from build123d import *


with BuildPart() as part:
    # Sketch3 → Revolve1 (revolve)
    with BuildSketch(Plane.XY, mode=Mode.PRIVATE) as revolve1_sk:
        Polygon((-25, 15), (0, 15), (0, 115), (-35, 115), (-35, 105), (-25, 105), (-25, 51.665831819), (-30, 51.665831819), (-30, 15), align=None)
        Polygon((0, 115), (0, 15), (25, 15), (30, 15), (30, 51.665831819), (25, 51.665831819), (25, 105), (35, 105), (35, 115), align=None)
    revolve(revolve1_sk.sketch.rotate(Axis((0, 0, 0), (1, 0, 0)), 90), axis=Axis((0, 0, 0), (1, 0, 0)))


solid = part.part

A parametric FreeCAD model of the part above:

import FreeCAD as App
import Part
import Sketcher

V = App.Vector
Q = App.Units.Quantity


def add_polygon(sketch, points):
    """Adds a closed chain of lines whose ends are joined by coincident constraints."""
    first, n = sketch.GeometryCount, len(points)
    for a, b in zip(points, points[1:] + points[:1]):
        sketch.addGeometry(Part.LineSegment(App.Vector(*a, 0), App.Vector(*b, 0)), False)
    for i in range(n):
        sketch.addConstraint(Sketcher.Constraint("Coincident", first + i, 2, first + (i + 1) % n, 1))

doc = App.newDocument("Part")
body = doc.addObject("PartDesign::Body", "Body")

# Sketch on XY plane
sketch1 = doc.addObject("Sketcher::SketchObject", "Sketch")
body.addObject(sketch1)
sketch1.AttachmentSupport = (doc.XY_Plane, [""])
sketch1.MapMode = "FlatFace"
add_polygon(sketch1, [(-35, 115), (-35, 105), (-25, 105), (-25, 52), (-30, 52), (-30, 15), (30, 15), (30, 52), (25, 52), (25, 105), (35, 105), (35, 115)])  # lines 0-11
sketch1.addConstraint(Sketcher.Constraint("Vertical", 0))
sketch1.addConstraint(Sketcher.Constraint("Horizontal", 1))
sketch1.addConstraint(Sketcher.Constraint("Vertical", 2))
sketch1.addConstraint(Sketcher.Constraint("Horizontal", 3))
sketch1.addConstraint(Sketcher.Constraint("Vertical", 4))
sketch1.addConstraint(Sketcher.Constraint("Horizontal", 5))
sketch1.addConstraint(Sketcher.Constraint("Vertical", 6))
sketch1.addConstraint(Sketcher.Constraint("Horizontal", 7))
sketch1.addConstraint(Sketcher.Constraint("Vertical", 8))
sketch1.addConstraint(Sketcher.Constraint("Horizontal", 9))
sketch1.addConstraint(Sketcher.Constraint("Vertical", 10))
sketch1.addConstraint(Sketcher.Constraint("Horizontal", 11))
sketch1.addConstraint(Sketcher.Constraint("Symmetric", 3, 2, 6, 2, -2))
sketch1.addConstraint(Sketcher.Constraint("Symmetric", 1, 2, 8, 2, -2))
sketch1.addConstraint(Sketcher.Constraint("Equal", 1, 9))
sketch1.addConstraint(Sketcher.Constraint("Equal", 9, 0))
sketch1.addConstraint(Sketcher.Constraint("DistanceX", 1, 1, 1, 2, Q("10 mm")))
sketch1.addConstraint(Sketcher.Constraint("DistanceX", 3, 2, 3, 1, Q("5 mm")))
sketch1.addConstraint(Sketcher.Constraint("DistanceX", 5, 1, 5, 2, Q("60 mm")))
sketch1.addConstraint(Sketcher.Constraint("DistanceY", -1, 1, 0, 2, Q("105 mm")))
sketch1.addConstraint(Sketcher.Constraint("DistanceY", -1, 1, 4, 2, Q("15 mm")))
sketch1.addConstraint(Sketcher.Constraint("DistanceY", 2, 2, 2, 1, Q("53.334168 mm")))
revolution = doc.addObject("PartDesign::Revolution", "Revolution")
body.addObject(revolution)
revolution.Profile = sketch1
revolution.ReferenceAxis = (sketch1, ["H_Axis"])
revolution.Angle = 360

doc.recompute()
